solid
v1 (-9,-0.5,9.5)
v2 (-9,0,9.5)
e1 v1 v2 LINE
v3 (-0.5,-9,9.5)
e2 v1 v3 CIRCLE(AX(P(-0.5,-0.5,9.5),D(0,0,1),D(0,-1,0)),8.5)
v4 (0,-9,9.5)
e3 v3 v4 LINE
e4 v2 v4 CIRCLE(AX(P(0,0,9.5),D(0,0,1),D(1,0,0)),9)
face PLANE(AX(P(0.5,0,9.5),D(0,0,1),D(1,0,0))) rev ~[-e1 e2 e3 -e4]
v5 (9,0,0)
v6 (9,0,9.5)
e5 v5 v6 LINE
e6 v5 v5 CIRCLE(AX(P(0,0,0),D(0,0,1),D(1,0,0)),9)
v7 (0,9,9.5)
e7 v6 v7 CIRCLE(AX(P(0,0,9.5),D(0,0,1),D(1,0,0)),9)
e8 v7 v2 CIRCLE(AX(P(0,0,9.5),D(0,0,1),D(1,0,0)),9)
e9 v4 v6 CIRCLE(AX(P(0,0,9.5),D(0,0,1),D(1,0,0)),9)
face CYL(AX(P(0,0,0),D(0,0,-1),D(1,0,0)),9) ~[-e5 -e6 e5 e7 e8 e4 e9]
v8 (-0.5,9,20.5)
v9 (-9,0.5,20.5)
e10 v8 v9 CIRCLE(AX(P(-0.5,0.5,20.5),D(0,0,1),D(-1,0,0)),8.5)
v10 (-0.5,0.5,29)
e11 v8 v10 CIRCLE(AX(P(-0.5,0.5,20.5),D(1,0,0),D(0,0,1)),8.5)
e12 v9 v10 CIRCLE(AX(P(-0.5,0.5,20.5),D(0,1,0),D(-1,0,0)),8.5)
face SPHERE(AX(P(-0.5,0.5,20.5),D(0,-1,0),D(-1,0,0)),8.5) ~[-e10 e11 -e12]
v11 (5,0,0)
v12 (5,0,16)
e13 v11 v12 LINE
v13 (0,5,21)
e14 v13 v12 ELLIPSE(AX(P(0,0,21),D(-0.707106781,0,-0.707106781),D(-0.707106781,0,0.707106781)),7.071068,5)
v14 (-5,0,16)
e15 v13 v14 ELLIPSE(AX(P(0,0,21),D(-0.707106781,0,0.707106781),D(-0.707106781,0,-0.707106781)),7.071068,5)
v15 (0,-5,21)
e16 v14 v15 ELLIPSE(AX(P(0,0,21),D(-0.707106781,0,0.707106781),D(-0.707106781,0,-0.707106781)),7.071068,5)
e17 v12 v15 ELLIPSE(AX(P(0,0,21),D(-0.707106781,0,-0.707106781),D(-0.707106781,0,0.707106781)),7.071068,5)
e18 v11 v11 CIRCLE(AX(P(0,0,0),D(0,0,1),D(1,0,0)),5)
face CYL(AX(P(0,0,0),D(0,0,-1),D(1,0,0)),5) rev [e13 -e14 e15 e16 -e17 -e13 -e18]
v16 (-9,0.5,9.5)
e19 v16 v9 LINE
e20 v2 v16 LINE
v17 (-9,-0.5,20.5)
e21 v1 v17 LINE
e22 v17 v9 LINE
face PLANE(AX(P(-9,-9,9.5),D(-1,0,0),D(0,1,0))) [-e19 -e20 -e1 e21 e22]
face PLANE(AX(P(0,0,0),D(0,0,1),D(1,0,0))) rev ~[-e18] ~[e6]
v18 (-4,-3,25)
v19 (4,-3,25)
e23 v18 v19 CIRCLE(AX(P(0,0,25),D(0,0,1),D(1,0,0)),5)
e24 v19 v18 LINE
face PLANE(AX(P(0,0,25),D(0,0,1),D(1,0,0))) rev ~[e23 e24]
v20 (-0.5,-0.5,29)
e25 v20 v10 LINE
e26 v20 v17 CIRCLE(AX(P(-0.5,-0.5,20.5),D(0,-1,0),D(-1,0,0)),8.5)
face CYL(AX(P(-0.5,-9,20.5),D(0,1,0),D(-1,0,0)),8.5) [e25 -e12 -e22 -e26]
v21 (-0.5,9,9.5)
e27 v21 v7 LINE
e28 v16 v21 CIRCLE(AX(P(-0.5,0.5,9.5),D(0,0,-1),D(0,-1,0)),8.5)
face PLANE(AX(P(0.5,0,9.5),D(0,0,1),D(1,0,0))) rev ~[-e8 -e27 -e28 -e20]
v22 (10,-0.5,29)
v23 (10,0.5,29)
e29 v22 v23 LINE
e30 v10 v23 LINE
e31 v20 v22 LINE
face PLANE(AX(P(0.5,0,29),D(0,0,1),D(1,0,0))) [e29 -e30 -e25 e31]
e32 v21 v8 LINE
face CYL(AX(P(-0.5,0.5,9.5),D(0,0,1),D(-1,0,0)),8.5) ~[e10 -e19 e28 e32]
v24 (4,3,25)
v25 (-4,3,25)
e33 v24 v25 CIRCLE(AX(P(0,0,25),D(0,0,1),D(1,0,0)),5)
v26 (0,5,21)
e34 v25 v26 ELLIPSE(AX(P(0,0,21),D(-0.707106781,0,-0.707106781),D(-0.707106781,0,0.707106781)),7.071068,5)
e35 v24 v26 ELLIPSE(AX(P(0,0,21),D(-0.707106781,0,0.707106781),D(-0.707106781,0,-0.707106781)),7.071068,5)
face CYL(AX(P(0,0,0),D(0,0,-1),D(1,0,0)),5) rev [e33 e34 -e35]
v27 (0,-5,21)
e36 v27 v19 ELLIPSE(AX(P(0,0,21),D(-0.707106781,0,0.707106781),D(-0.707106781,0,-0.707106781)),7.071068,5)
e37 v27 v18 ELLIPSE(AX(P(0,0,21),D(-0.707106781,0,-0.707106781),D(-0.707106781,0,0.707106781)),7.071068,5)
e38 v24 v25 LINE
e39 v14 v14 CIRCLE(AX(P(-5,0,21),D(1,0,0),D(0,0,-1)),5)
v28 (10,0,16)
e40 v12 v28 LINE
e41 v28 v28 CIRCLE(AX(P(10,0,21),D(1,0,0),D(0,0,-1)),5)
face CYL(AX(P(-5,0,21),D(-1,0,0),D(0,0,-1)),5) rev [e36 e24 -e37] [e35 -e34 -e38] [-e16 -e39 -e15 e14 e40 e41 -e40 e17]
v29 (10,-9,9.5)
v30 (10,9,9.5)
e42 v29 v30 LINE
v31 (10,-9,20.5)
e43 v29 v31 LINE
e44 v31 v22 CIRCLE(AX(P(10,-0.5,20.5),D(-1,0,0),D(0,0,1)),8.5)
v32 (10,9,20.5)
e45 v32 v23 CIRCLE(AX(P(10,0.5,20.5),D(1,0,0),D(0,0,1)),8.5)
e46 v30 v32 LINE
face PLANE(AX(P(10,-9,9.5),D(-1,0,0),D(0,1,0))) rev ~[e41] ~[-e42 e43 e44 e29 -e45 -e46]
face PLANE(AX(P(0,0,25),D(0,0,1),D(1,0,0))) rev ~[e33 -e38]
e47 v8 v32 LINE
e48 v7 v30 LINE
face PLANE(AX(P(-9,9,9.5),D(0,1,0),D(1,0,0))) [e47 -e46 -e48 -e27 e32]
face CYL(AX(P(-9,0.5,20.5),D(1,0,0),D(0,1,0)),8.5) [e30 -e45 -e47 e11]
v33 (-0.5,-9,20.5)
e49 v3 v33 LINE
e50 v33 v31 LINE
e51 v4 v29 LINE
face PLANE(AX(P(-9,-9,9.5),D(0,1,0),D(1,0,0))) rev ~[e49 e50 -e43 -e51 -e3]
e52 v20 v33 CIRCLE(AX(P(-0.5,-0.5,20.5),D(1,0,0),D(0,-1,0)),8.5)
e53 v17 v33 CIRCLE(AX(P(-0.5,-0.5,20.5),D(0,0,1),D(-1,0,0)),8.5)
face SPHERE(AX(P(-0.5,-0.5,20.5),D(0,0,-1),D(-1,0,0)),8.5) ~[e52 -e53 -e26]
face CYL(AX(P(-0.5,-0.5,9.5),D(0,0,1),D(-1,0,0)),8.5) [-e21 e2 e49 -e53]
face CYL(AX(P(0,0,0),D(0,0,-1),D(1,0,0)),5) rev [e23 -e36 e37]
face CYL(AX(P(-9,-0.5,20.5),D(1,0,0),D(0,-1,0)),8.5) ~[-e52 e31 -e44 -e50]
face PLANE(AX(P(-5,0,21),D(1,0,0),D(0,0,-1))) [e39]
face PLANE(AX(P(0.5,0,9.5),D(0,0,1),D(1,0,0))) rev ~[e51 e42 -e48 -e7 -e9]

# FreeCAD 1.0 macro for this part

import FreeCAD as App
import Part
import Sketcher

V = App.Vector
Q = App.Units.Quantity


def edges_at(feature, points):
    """Names of the edges that pass closest to the given points."""
    edges = feature.Shape.Edges
    near = lambda p: min(range(len(edges)), key=lambda i: edges[i].distToShape(Part.Vertex(*p))[0])
    return sorted({f"Edge{near(p) + 1}" for p in points})

doc = App.newDocument("Part")
body = doc.addObject("PartDesign::Body", "Body")

# Sketch on XY plane
sketch1 = body.newObject("Sketcher::SketchObject", "Sketch")
sketch1.AttachmentSupport = (doc.getObject("XY_Plane"), [""])
sketch1.MapMode = "FlatFace"
sketch1.addGeometry(Part.Circle(V(0, 0, 0), V(0, 0, 1), 5), False)
sketch1.addConstraint(Sketcher.Constraint("Coincident", 0, 3, -1, 1))
sketch1.addConstraint(Sketcher.Constraint("Diameter", 0, Q("10 mm")))
pad1 = body.newObject("PartDesign::Pad", "Pad")
pad1.Profile = sketch1
pad1.Length = 25
body2 = doc.addObject("PartDesign::Body", "Body001")

# Sketch on YZ plane
sketch2 = body2.newObject("Sketcher::SketchObject", "Sketch001")
sketch2.AttachmentSupport = (doc.getObject("YZ_Plane001"), [""])
sketch2.MapMode = "FlatFace"
sketch2.AttachmentOffset = App.Placement(V(0, 0, -5), App.Rotation())
sketch2.addGeometry(Part.Circle(V(0, 21, 0), V(0, 0, 1), 5), False)
sketch2.addConstraint(Sketcher.Constraint("PointOnObject", 0, 3, -2))
sketch2.addConstraint(Sketcher.Constraint("Diameter", 0, Q("10 mm")))
sketch2.addConstraint(Sketcher.Constraint("DistanceY", -1, 1, 0, 3, Q("21 mm")))
pad2 = body2.newObject("PartDesign::Pad", "Pad001")
pad2.Profile = sketch2
pad2.Length = 15
doc.recompute()

boolean = body2.newObject("PartDesign::Boolean", "Boolean")
boolean.Type = "Fuse"
boolean.addObjects([body])
body3 = doc.addObject("PartDesign::Body", "Body002")

# Sketch on XY plane
sketch3 = body3.newObject("Sketcher::SketchObject", "Sketch002")
sketch3.AttachmentSupport = (doc.getObject("XY_Plane002"), [""])
sketch3.MapMode = "FlatFace"
sketch3.addGeometry(Part.Circle(V(0, 0, 0), V(0, 0, 1), 9), False)
sketch3.addConstraint(Sketcher.Constraint("Coincident", 0, 3, -1, 1))
sketch3.addConstraint(Sketcher.Constraint("Diameter", 0, Q("18 mm")))
pad3 = body3.newObject("PartDesign::Pad", "Pad002")
pad3.Profile = sketch3
pad3.Length = 9.5
body4 = doc.addObject("PartDesign::Body", "Body003")

# Sketch on XY plane
sketch4 = body4.newObject("Sketcher::SketchObject", "Sketch003")
sketch4.AttachmentSupport = (doc.getObject("XY_Plane003"), [""])
sketch4.MapMode = "FlatFace"
sketch4.AttachmentOffset = App.Placement(V(0, 0, 9.5), App.Rotation())
sketch4.addGeometry(Part.LineSegment(V(-9, 9, 0), V(-9, -9, 0)), False)
sketch4.addGeometry(Part.LineSegment(V(-9, -9, 0), V(10, -9, 0)), False)
sketch4.addGeometry(Part.LineSegment(V(10, -9, 0), V(10, 9, 0)), False)
sketch4.addGeometry(Part.LineSegment(V(10, 9, 0), V(-9, 9, 0)), False)
sketch4.addConstraint(Sketcher.Constraint("Coincident", 0, 2, 1, 1))
sketch4.addConstraint(Sketcher.Constraint("Coincident", 1, 2, 2, 1))
sketch4.addConstraint(Sketcher.Constraint("Coincident", 2, 2, 3, 1))
sketch4.addConstraint(Sketcher.Constraint("Coincident", 3, 2, 0, 1))
sketch4.addConstraint(Sketcher.Constraint("Vertical", 0))
sketch4.addConstraint(Sketcher.Constraint("Horizontal", 1))
sketch4.addConstraint(Sketcher.Constraint("Vertical", 2))
sketch4.addConstraint(Sketcher.Constraint("Horizontal", 3))
sketch4.addConstraint(Sketcher.Constraint("DistanceX", 1, 1, 1, 2, Q("19 mm")))
sketch4.addConstraint(Sketcher.Constraint("DistanceY", 0, 2, 0, 1, Q("18 mm")))
sketch4.addConstraint(Sketcher.Constraint("DistanceX", 0, 2, -1, 1, Q("9 mm")))
sketch4.addConstraint(Sketcher.Constraint("DistanceY", 0, 2, -1, 1, Q("9 mm")))
pad4 = body4.newObject("PartDesign::Pad", "Pad003")
pad4.Profile = sketch4
pad4.Length = 19.5
doc.recompute()

fillet = body4.newObject("PartDesign::Fillet", "Fillet")
fillet.Base = (pad4, edges_at(pad4, [
    (-9, -9, 19.25),
    (-9, 0, 29),
    (-9, 9, 19.25),
    (0.5, -9, 29),
    (0.5, 9, 29),
]))
fillet.Radius = 8.5
doc.recompute()

boolean2 = body4.newObject("PartDesign::Boolean", "Boolean001")
boolean2.Type = "Fuse"
boolean2.addObjects([body3])
doc.recompute()

boolean3 = body4.newObject("PartDesign::Boolean", "Boolean002")
boolean3.Type = "Cut"
boolean3.addObjects([body2])

doc.recompute()
